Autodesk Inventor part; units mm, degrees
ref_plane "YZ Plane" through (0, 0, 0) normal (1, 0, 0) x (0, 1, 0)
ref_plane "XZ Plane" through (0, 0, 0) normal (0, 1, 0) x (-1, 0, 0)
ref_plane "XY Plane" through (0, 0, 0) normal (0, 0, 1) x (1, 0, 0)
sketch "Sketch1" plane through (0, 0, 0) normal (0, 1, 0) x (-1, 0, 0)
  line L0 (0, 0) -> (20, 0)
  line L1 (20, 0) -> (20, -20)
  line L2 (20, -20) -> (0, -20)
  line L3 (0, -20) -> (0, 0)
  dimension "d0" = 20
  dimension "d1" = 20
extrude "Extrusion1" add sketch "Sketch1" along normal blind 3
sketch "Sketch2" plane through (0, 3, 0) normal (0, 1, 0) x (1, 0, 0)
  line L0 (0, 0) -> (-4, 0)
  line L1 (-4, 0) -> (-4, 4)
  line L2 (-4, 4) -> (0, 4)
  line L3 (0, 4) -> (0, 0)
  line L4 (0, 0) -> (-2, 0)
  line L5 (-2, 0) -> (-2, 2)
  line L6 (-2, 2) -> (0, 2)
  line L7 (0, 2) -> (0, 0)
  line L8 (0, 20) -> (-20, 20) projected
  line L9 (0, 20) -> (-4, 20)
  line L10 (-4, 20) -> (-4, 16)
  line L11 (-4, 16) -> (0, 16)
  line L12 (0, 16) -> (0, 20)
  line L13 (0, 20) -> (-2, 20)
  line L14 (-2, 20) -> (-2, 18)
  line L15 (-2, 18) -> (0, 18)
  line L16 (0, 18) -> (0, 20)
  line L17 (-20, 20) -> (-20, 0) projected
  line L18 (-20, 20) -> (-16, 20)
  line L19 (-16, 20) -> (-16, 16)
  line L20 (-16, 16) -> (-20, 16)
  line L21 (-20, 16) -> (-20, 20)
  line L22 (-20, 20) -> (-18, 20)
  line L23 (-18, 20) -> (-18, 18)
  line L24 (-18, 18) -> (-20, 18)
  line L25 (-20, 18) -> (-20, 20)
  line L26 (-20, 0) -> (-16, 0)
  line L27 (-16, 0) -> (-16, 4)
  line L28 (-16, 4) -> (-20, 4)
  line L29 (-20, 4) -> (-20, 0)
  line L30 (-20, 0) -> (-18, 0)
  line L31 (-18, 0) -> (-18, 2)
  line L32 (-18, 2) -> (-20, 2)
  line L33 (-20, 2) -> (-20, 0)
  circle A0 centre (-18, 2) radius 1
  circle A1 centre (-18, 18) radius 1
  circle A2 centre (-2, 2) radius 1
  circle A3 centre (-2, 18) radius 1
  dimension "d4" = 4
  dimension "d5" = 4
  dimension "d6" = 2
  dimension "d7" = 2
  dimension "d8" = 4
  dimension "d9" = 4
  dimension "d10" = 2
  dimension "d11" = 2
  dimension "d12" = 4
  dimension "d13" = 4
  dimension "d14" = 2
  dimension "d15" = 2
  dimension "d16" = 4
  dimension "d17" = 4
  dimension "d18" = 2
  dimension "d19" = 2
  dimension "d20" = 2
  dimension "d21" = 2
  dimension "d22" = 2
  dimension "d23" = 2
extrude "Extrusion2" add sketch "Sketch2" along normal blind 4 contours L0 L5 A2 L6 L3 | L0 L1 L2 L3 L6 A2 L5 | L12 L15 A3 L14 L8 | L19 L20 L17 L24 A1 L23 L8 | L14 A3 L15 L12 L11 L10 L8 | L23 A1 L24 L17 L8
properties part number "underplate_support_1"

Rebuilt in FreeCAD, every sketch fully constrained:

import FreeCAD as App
import Part
import Sketcher
from FreeCAD import Vector

doc = App.newDocument("Part")
params = doc.addObject("Spreadsheet::Sheet", "Params")
for row, (alias, value) in enumerate([
    ("sketch1_width", "20 mm"),
    ("pad1_length", "3 mm"),
    ("sketch2_diameter", "2 mm"),
    ("sketch2_width", "4 mm"),
    ("pad2_length", "4 mm"),
], start=1):
    params.set(f"A{row}", alias)
    params.set(f"B{row}", "=" + value)
    params.setAlias(f"B{row}", alias)

body = doc.addObject("PartDesign::Body", "Body")

# Sketch on XZ plane
sketch1 = body.newObject("Sketcher::SketchObject", "Sketch")
sketch1.AttachmentSupport = (doc.getObject("XZ_Plane"), [""])
sketch1.MapMode = "FlatFace"
sketch1.addGeometry([
    Part.LineSegment(Vector(-20, 0, 0), Vector(0, 0, 0)),
    Part.LineSegment(Vector(0, 0, 0), Vector(0, -20, 0)),
    Part.LineSegment(Vector(0, -20, 0), Vector(-20, -20, 0)),
    Part.LineSegment(Vector(-20, -20, 0), Vector(-20, 0, 0)),
], False)
sketch1.addConstraint([
    Sketcher.Constraint("Coincident", 0, 2, 1, 1),
    Sketcher.Constraint("Coincident", 1, 2, 2, 1),
    Sketcher.Constraint("Coincident", 2, 2, 3, 1),
    Sketcher.Constraint("Coincident", 3, 2, 0, 1),
    Sketcher.Constraint("Horizontal", 0),
    Sketcher.Constraint("Vertical", 1),
    Sketcher.Constraint("Horizontal", 2),
    Sketcher.Constraint("Vertical", 3),
    Sketcher.Constraint("Coincident", 0, 2, -1, 1),
    Sketcher.Constraint("Equal", 2, 1),
    Sketcher.Constraint("DistanceX", 0, 1, 0, 2, 20.0),
])
sketch1.setExpression("Constraints[10]", "Params.sketch1_width")
pad1 = body.newObject("PartDesign::Pad", "Pad")
pad1.Profile = sketch1
pad1.setExpression("Length", "Params.pad1_length")
pad1.Reversed = True

# Sketch on XZ plane
sketch2 = body.newObject("Sketcher::SketchObject", "Sketch001")
sketch2.AttachmentSupport = (doc.getObject("XZ_Plane"), [""])
sketch2.MapMode = "FlatFace"
sketch2.AttachmentOffset = App.Placement(Vector(0, 0, -3), App.Rotation())
sketch2.addGeometry([
    Part.LineSegment(Vector(0, 0, 0), Vector(0, -4, 0)),  # 0
    Part.LineSegment(Vector(0, -4, 0), Vector(-4, -4, 0)),  # 1
    Part.LineSegment(Vector(-4, -4, 0), Vector(-4, 0, 0)),  # 2
    Part.LineSegment(Vector(-4, 0, 0), Vector(0, 0, 0)),  # 3
    Part.Circle(Vector(-2, -2, 0), Vector(0, 0, 1), 1),  # 4
    Part.LineSegment(Vector(0, -20, 0), Vector(-4, -20, 0)),  # 5
    Part.LineSegment(Vector(-4, -20, 0), Vector(-4, -16, 0)),  # 6
    Part.LineSegment(Vector(-4, -16, 0), Vector(0, -16, 0)),  # 7
    Part.LineSegment(Vector(0, -16, 0), Vector(0, -20, 0)),  # 8
    Part.Circle(Vector(-2, -18, 0), Vector(0, 0, 1), 1),  # 9
    Part.LineSegment(Vector(-16, -16, 0), Vector(-16, -20, 0)),  # 10
    Part.LineSegment(Vector(-16, -20, 0), Vector(-20, -20, 0)),  # 11
    Part.LineSegment(Vector(-20, -20, 0), Vector(-20, -16, 0)),  # 12
    Part.LineSegment(Vector(-20, -16, 0), Vector(-16, -16, 0)),  # 13
    Part.Circle(Vector(-18, -18, 0), Vector(0, 0, 1), 1),  # 14
], False)
sketch2.addConstraint([
    Sketcher.Constraint("Coincident", 0, 2, 1, 1),
    Sketcher.Constraint("Coincident", 1, 2, 2, 1),
    Sketcher.Constraint("Coincident", 2, 2, 3, 1),
    Sketcher.Constraint("Coincident", 3, 2, 0, 1),
    Sketcher.Constraint("Coincident", 5, 2, 6, 1),
    Sketcher.Constraint("Coincident", 6, 2, 7, 1),
    Sketcher.Constraint("Coincident", 7, 2, 8, 1),
    Sketcher.Constraint("Coincident", 8, 2, 5, 1),
    Sketcher.Constraint("Coincident", 10, 2, 11, 1),
    Sketcher.Constraint("Coincident", 11, 2, 12, 1),
    Sketcher.Constraint("Coincident", 12, 2, 13, 1),
    Sketcher.Constraint("Coincident", 13, 2, 10, 1),
    Sketcher.Constraint("Vertical", 0),
    Sketcher.Constraint("Horizontal", 1),
    Sketcher.Constraint("Vertical", 2),
    Sketcher.Constraint("Horizontal", 3),
    Sketcher.Constraint("Horizontal", 5),
    Sketcher.Constraint("Vertical", 6),
    Sketcher.Constraint("Horizontal", 7),
    Sketcher.Constraint("Vertical", 8),
    Sketcher.Constraint("Vertical", 10),
    Sketcher.Constraint("Horizontal", 11),
    Sketcher.Constraint("Vertical", 12),
    Sketcher.Constraint("Horizontal", 13),
    Sketcher.Constraint("Coincident", 3, 2, -1, 1),
    Sketcher.Constraint("Equal", 4, 9),
    Sketcher.Constraint("Equal", 9, 14),
    Sketcher.Constraint("PointOnObject", 7, 2, -2),
    Sketcher.Constraint("Horizontal", 9, 3, 14, 3),
    Sketcher.Constraint("Horizontal", 8, 2, 10, 2),
    Sketcher.Constraint("Horizontal", 7, 2, 12, 2),
    Sketcher.Constraint("Vertical", 4, 3, 9, 3),
    Sketcher.Constraint("Vertical", 2, 2, 5, 2),
    Sketcher.Constraint("Equal", 7, 11),
    Sketcher.Constraint("Equal", 13, 0),
    Sketcher.Constraint("Equal", 2, 6),
    Sketcher.Constraint("Diameter", 4, 2.0),
    Sketcher.Constraint("DistanceX", 1, 2, 1, 1, 4.0),
    Sketcher.Constraint("DistanceX", 4, 3, -1, 1, 2.0),
    Sketcher.Constraint("DistanceY", 4, 3, -1, 1, 2.0),
    Sketcher.Constraint("DistanceY", 5, 2, 9, 3, 2.0),
    Sketcher.Constraint("DistanceX", 14, 3, 10, 2, 2.0),
    Sketcher.Constraint("DistanceY", 9, 3, -1, 1, 18.0),
    Sketcher.Constraint("DistanceX", 14, 3, -1, 1, 18.0),
])
sketch2.setExpression("Constraints[36]", "Params.sketch2_diameter")
sketch2.setExpression("Constraints[37]", "Params.sketch2_width")
pad2 = body.newObject("PartDesign::Pad", "Pad001")
pad2.Profile = sketch2
pad2.setExpression("Length", "Params.pad2_length")
pad2.Reversed = True

doc.recompute()
